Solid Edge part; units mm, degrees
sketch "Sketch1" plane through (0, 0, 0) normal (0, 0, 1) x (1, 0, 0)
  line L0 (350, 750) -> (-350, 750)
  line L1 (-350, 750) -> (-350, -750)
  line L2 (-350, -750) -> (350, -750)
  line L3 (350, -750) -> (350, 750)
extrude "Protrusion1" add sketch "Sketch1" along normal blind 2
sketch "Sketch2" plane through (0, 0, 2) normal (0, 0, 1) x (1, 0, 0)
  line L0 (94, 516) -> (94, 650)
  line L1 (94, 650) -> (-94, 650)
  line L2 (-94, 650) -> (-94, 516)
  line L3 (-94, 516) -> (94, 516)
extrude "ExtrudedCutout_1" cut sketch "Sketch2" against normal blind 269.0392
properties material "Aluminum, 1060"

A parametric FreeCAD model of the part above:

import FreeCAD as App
import Part
import Sketcher
from FreeCAD import Vector

doc = App.newDocument("Part")
body = doc.addObject("PartDesign::Body", "Body")

# Sketch on XY plane
sketch1 = doc.addObject("Sketcher::SketchObject", "Sketch")
body.addObject(sketch1)
sketch1.AttachmentSupport = (doc.XY_Plane, [""])
sketch1.MapMode = "FlatFace"
sketch1.addGeometry([
    Part.LineSegment(Vector(350, -750, 0), Vector(350, 750, 0)),
    Part.LineSegment(Vector(350, 750, 0), Vector(-350, 750, 0)),
    Part.LineSegment(Vector(-350, 750, 0), Vector(-350, -750, 0)),
    Part.LineSegment(Vector(-350, -750, 0), Vector(350, -750, 0)),
], False)
sketch1.addConstraint([
    Sketcher.Constraint("Coincident", 0, 2, 1, 1),
    Sketcher.Constraint("Coincident", 1, 2, 2, 1),
    Sketcher.Constraint("Coincident", 2, 2, 3, 1),
    Sketcher.Constraint("Coincident", 3, 2, 0, 1),
    Sketcher.Constraint("Vertical", 0),
    Sketcher.Constraint("Horizontal", 1),
    Sketcher.Constraint("Vertical", 2),
    Sketcher.Constraint("Horizontal", 3),
    Sketcher.Constraint("Symmetric", 0, 2, 2, 2, -1, 1),
    Sketcher.Constraint("DistanceX", 1, 2, 1, 1, 700.0),
    Sketcher.Constraint("DistanceY", 0, 1, 0, 2, 1500.0),
])
pad1 = doc.addObject("PartDesign::Pad", "Pad")
body.addObject(pad1)
pad1.Profile = sketch1
pad1.Length = 2

# Sketch on XY plane
sketch2 = doc.addObject("Sketcher::SketchObject", "Sketch001")
body.addObject(sketch2)
sketch2.AttachmentSupport = (doc.XY_Plane, [""])
sketch2.MapMode = "FlatFace"
sketch2.AttachmentOffset = App.Placement(Vector(0, 0, 2), App.Rotation())
sketch2.addGeometry([
    Part.LineSegment(Vector(-94, 516, 0), Vector(94, 516, 0)),
    Part.LineSegment(Vector(94, 516, 0), Vector(94, 650, 0)),
    Part.LineSegment(Vector(94, 650, 0), Vector(-94, 650, 0)),
    Part.LineSegment(Vector(-94, 650, 0), Vector(-94, 516, 0)),
], False)
sketch2.addConstraint([
    Sketcher.Constraint("Coincident", 0, 2, 1, 1),
    Sketcher.Constraint("Coincident", 1, 2, 2, 1),
    Sketcher.Constraint("Coincident", 2, 2, 3, 1),
    Sketcher.Constraint("Coincident", 3, 2, 0, 1),
    Sketcher.Constraint("Horizontal", 0),
    Sketcher.Constraint("Vertical", 1),
    Sketcher.Constraint("Horizontal", 2),
    Sketcher.Constraint("Vertical", 3),
    Sketcher.Constraint("DistanceX", 0, 1, 0, 2, 188.0),
    Sketcher.Constraint("DistanceY", 1, 1, 1, 2, 134.0),
    Sketcher.Constraint("DistanceX", -1, 1, 0, 2, 94.0),
    Sketcher.Constraint("DistanceY", -1, 1, 0, 2, 516.0),
])
pocket1 = doc.addObject("PartDesign::Pocket", "Pocket")
body.addObject(pocket1)
pocket1.Profile = sketch2
pocket1.Length = 269.0392

doc.recompute()
